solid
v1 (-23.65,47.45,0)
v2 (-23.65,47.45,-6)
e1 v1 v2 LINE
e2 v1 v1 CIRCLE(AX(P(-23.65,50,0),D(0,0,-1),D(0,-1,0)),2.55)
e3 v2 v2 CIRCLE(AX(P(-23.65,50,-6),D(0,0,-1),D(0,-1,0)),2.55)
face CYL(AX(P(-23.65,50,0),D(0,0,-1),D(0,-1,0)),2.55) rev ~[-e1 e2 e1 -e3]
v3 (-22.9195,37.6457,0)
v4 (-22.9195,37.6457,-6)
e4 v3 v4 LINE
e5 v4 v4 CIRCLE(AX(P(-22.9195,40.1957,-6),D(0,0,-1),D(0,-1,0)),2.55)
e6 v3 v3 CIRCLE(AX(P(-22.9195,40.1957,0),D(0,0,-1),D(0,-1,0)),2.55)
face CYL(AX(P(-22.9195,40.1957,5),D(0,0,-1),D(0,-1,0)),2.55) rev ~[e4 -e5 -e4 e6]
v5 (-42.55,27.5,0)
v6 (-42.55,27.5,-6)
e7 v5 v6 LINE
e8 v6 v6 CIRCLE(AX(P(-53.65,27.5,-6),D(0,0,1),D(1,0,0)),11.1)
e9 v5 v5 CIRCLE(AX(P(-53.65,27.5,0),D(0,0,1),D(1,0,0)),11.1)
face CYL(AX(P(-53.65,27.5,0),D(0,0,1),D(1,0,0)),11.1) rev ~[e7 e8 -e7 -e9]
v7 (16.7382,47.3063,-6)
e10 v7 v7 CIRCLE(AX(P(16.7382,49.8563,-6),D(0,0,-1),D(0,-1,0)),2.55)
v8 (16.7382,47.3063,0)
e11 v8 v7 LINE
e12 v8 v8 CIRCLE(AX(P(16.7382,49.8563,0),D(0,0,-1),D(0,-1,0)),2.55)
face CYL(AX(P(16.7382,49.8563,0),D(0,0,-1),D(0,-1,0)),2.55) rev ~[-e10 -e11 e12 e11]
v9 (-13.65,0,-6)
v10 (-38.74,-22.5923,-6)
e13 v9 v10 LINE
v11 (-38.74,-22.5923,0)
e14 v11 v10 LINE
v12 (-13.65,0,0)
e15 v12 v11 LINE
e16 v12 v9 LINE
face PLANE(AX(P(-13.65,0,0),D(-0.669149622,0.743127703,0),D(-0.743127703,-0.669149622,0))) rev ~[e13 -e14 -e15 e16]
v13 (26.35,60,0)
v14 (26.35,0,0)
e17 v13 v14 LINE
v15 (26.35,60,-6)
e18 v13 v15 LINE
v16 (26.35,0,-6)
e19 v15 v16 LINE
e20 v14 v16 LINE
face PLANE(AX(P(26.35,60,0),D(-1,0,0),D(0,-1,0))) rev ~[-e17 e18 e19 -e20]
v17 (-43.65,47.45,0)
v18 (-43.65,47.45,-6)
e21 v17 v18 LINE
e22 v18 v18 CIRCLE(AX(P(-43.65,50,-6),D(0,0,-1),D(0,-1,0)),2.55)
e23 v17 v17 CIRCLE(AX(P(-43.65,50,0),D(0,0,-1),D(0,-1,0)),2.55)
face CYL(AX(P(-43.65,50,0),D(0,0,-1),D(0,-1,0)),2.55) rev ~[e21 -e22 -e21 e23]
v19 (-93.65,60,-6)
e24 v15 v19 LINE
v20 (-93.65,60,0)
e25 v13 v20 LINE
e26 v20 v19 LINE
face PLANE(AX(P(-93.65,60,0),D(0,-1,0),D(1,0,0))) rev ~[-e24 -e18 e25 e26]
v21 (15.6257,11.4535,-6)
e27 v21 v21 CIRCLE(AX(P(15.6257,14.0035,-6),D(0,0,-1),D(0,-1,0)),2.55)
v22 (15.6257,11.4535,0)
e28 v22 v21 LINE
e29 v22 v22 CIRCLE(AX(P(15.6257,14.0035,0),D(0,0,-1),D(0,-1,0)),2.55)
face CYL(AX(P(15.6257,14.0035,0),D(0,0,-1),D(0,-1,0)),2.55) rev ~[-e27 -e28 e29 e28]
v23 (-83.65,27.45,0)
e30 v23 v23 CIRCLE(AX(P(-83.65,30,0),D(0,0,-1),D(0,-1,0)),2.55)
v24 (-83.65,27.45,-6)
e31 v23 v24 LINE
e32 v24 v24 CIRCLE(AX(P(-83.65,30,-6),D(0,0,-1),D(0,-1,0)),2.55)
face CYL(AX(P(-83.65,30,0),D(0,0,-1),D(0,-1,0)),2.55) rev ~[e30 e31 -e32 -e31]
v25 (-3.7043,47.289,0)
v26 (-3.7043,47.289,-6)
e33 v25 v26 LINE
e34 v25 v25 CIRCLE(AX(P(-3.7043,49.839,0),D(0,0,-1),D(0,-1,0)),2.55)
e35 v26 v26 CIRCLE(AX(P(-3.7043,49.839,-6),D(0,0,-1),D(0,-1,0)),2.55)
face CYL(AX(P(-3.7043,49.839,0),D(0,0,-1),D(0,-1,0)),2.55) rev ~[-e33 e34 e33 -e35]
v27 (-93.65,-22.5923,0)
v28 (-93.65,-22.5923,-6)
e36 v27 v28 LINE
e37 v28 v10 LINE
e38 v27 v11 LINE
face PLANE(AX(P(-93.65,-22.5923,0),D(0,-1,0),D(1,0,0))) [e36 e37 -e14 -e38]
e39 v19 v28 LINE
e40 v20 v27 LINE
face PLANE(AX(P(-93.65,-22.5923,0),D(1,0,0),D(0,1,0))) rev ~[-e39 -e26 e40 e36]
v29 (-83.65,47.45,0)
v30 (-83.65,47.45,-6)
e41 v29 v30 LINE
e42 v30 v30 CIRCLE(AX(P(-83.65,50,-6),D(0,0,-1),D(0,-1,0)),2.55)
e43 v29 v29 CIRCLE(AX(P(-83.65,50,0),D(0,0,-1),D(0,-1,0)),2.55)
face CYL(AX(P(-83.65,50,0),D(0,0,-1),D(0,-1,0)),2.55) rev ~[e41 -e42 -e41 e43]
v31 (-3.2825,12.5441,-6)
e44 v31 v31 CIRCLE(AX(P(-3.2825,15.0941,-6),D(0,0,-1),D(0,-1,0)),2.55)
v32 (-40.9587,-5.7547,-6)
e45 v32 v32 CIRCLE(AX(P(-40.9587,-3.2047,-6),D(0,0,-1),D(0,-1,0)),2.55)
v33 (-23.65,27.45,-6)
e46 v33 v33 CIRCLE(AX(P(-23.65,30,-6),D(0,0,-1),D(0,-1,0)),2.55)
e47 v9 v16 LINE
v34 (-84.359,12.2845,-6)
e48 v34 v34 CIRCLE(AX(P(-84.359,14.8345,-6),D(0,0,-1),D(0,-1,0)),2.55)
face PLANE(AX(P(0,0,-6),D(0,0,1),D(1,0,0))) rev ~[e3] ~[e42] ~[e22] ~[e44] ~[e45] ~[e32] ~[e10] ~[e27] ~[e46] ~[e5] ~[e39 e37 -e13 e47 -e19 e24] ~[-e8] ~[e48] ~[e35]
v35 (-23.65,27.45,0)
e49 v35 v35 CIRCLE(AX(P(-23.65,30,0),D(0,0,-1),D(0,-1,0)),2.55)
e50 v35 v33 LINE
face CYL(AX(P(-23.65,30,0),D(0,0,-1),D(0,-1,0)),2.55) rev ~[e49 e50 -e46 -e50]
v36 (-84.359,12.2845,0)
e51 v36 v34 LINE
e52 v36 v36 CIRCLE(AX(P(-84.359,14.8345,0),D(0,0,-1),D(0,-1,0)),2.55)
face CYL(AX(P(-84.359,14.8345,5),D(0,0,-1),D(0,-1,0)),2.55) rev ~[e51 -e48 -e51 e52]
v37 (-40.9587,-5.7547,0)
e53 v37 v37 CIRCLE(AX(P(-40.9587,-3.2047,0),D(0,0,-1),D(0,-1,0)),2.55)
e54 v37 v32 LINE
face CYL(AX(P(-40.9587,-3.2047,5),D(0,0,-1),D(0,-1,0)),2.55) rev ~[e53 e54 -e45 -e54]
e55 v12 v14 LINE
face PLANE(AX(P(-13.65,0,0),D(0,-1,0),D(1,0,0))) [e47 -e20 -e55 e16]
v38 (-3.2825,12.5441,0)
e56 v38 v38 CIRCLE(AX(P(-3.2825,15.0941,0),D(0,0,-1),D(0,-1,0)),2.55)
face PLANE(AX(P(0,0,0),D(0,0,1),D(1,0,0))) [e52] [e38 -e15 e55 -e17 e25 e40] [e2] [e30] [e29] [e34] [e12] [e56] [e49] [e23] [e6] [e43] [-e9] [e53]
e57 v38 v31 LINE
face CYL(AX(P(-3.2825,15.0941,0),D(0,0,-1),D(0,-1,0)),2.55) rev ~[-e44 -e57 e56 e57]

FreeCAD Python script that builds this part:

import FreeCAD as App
import Part
import Sketcher
from FreeCAD import Vector

doc = App.newDocument("Part")
body = doc.addObject("PartDesign::Body", "Body")

# Sketch on XY plane
sketch1 = body.newObject("Sketcher::SketchObject", "Sketch")
sketch1.AttachmentSupport = (doc.getObject("XY_Plane"), [""])
sketch1.MapMode = "FlatFace"
sketch1.addGeometry([
    Part.LineSegment(Vector(-14, 0, 0), Vector(26, 0, 0)),  # 0
    Part.LineSegment(Vector(26, 0, 0), Vector(26, 60, 0)),  # 1
    Part.LineSegment(Vector(26, 60, 0), Vector(-94, 60, 0)),  # 2
    Part.LineSegment(Vector(-94, 60, 0), Vector(-94, -23, 0)),  # 3
    Part.LineSegment(Vector(-94, -23, 0), Vector(-39, -23, 0)),  # 4
    Part.LineSegment(Vector(-39, -23, 0), Vector(-14, 0, 0)),  # 5
    Part.Circle(Vector(-54, 28, 0), Vector(0, 0, 1), 11),  # 6
], False)
sketch1.addConstraint([
    Sketcher.Constraint("Coincident", 0, 2, 1, 1),
    Sketcher.Constraint("Coincident", 1, 2, 2, 1),
    Sketcher.Constraint("Coincident", 2, 2, 3, 1),
    Sketcher.Constraint("Coincident", 3, 2, 4, 1),
    Sketcher.Constraint("Coincident", 4, 2, 5, 1),
    Sketcher.Constraint("Coincident", 5, 2, 0, 1),
    Sketcher.Constraint("Horizontal", 0),
    Sketcher.Constraint("Vertical", 1),
    Sketcher.Constraint("Horizontal", 2),
    Sketcher.Constraint("Vertical", 3),
    Sketcher.Constraint("Horizontal", 4),
    Sketcher.Constraint("PointOnObject", 0, 2, -1),
    Sketcher.Constraint("Diameter", 6, 22.2),
    Sketcher.Constraint("DistanceX", 0, 1, 0, 2, 40.0),
    Sketcher.Constraint("DistanceX", 2, 2, 2, 1, 120.0),
    Sketcher.Constraint("DistanceX", 2, 2, 6, 3, 40.0),
    Sketcher.Constraint("DistanceY", 6, 3, 1, 2, 32.5),
    Sketcher.Constraint("DistanceY", 1, 1, 1, 2, 60.0),
    Sketcher.Constraint("DistanceX", 4, 1, 4, 2, 54.91),
    Sketcher.Constraint("DistanceX", 6, 3, -1, 1, 53.65),
    Sketcher.Constraint("DistanceY", 3, 2, 3, 1, 82.5923),
])
pad1 = body.newObject("PartDesign::Pad", "Pad")
pad1.Profile = sketch1
pad1.Length = 6
pad1.Reversed = True

# Sketch on XY plane
sketch2 = body.newObject("Sketcher::SketchObject", "Sketch001")
sketch2.AttachmentSupport = (doc.getObject("XY_Plane"), [""])
sketch2.MapMode = "FlatFace"
sketch2.AttachmentOffset = App.Placement(Vector(0, 0, 5), App.Rotation())
sketch2.addGeometry([
    Part.Circle(Vector(-84.4, 14.8, 0), Vector(0, 0, 1), 2.5),
    Part.Circle(Vector(-22.9, 40.2, 0), Vector(0, 0, 1), 2.5),
    Part.Circle(Vector(-41, -3.2, 0), Vector(0, 0, 1), 2.5),
], False)
sketch2.addConstraint([
    Sketcher.Constraint("Equal", 0, 1),
    Sketcher.Constraint("Equal", 1, 2),
    Sketcher.Constraint("Diameter", 0, 5.1),
    Sketcher.Constraint("DistanceX", 0, 3, -1, 1, 84.359),
    Sketcher.Constraint("DistanceY", -1, 1, 0, 3, 14.8345),
    Sketcher.Constraint("DistanceX", 1, 3, -1, 1, 22.9195),
    Sketcher.Constraint("DistanceY", -1, 1, 1, 3, 40.1957),
    Sketcher.Constraint("DistanceX", 2, 3, -1, 1, 40.9587),
    Sketcher.Constraint("DistanceY", 2, 3, -1, 1, 3.2047),
])
doc.recompute()
hole = body.newObject("PartDesign::Hole", "Hole")
hole.Profile = sketch2
hole.ThreadType = "None"
hole.Diameter = 5.1
hole.DepthType = "ThroughAll"

# Sketch on XY plane
sketch3 = body.newObject("Sketcher::SketchObject", "Sketch002")
sketch3.AttachmentSupport = (doc.getObject("XY_Plane"), [""])
sketch3.MapMode = "FlatFace"
sketch3.addGeometry([
    Part.Circle(Vector(-53.6, 27.5, 0), Vector(0, 0, 1), 2.5),  # 0
    Part.Circle(Vector(-43.6, 50, 0), Vector(0, 0, 1), 2.5),  # 1
    Part.Circle(Vector(-23.6, 50, 0), Vector(0, 0, 1), 2.5),  # 2
    Part.Circle(Vector(-23.6, 30, 0), Vector(0, 0, 1), 2.5),  # 3
    Part.Circle(Vector(-83.7, 50, 0), Vector(0, 0, 1), 2.5),  # 4
    Part.Circle(Vector(-83.7, 30, 0), Vector(0, 0, 1), 2.5),  # 5
], False)
sketch3.addConstraint([
    Sketcher.Constraint("Equal", 0, 1),
    Sketcher.Constraint("Equal", 1, 2),
    Sketcher.Constraint("Equal", 2, 3),
    Sketcher.Constraint("Equal", 3, 4),
    Sketcher.Constraint("Equal", 4, 5),
    Sketcher.Constraint("Horizontal", 1, 3, 2, 3),
    Sketcher.Constraint("Horizontal", 2, 3, 4, 3),
    Sketcher.Constraint("Horizontal", 3, 3, 5, 3),
    Sketcher.Constraint("Vertical", 2, 3, 3, 3),
    Sketcher.Constraint("Vertical", 4, 3, 5, 3),
    Sketcher.Constraint("Diameter", 0, 5.1),
    Sketcher.Constraint("DistanceY", -1, 1, 1, 3, 50.0),
    Sketcher.Constraint("DistanceY", -1, 1, 3, 3, 30.0),
    Sketcher.Constraint("DistanceX", 0, 3, 1, 3, 10.0),
    Sketcher.Constraint("DistanceX", 1, 3, 2, 3, 20.0),
    Sketcher.Constraint("DistanceX", 4, 3, 0, 3, 30.0),
    Sketcher.Constraint("DistanceY", -1, 1, 0, 3, 27.5),
    Sketcher.Constraint("DistanceX", 0, 3, -1, 1, 53.65),
])
doc.recompute()
hole2 = body.newObject("PartDesign::Hole", "Hole001")
hole2.Profile = sketch3
hole2.ThreadType = "None"
hole2.Diameter = 5.1
hole2.DepthType = "ThroughAll"

# Sketch on XY plane
sketch4 = body.newObject("Sketcher::SketchObject", "Sketch003")
sketch4.AttachmentSupport = (doc.getObject("XY_Plane"), [""])
sketch4.MapMode = "FlatFace"
sketch4.addGeometry([
    Part.Circle(Vector(-3.3, 15.1, 0), Vector(0, 0, 1), 2.5),
    Part.Circle(Vector(-3.7, 49.8, 0), Vector(0, 0, 1), 2.5),
    Part.Circle(Vector(16.7, 49.9, 0), Vector(0, 0, 1), 2.5),
    Part.Circle(Vector(15.6, 14, 0), Vector(0, 0, 1), 2.5),
], False)
sketch4.addConstraint([
    Sketcher.Constraint("Equal", 0, 1),
    Sketcher.Constraint("Equal", 1, 2),
    Sketcher.Constraint("Equal", 2, 3),
    Sketcher.Constraint("Diameter", 0, 5.1),
    Sketcher.Constraint("DistanceX", 1, 3, 3, 3, 19.33),
    Sketcher.Constraint("DistanceY", -1, 1, 0, 3, 15.094),
    Sketcher.Constraint("DistanceY", -1, 1, 1, 3, 49.839),
    Sketcher.Constraint("DistanceX", 0, 3, -1, 1, 3.2825),
    Sketcher.Constraint("DistanceX", 1, 3, -1, 1, 3.7043),
    Sketcher.Constraint("DistanceX", -1, 1, 2, 3, 16.7382),
    Sketcher.Constraint("DistanceY", -1, 1, 2, 3, 49.8563),
    Sketcher.Constraint("DistanceY", -1, 1, 3, 3, 14.0035),
])
doc.recompute()
hole3 = body.newObject("PartDesign::Hole", "Hole002")
hole3.Profile = sketch4
hole3.ThreadType = "None"
hole3.Diameter = 5.1
hole3.DepthType = "ThroughAll"

doc.recompute()
